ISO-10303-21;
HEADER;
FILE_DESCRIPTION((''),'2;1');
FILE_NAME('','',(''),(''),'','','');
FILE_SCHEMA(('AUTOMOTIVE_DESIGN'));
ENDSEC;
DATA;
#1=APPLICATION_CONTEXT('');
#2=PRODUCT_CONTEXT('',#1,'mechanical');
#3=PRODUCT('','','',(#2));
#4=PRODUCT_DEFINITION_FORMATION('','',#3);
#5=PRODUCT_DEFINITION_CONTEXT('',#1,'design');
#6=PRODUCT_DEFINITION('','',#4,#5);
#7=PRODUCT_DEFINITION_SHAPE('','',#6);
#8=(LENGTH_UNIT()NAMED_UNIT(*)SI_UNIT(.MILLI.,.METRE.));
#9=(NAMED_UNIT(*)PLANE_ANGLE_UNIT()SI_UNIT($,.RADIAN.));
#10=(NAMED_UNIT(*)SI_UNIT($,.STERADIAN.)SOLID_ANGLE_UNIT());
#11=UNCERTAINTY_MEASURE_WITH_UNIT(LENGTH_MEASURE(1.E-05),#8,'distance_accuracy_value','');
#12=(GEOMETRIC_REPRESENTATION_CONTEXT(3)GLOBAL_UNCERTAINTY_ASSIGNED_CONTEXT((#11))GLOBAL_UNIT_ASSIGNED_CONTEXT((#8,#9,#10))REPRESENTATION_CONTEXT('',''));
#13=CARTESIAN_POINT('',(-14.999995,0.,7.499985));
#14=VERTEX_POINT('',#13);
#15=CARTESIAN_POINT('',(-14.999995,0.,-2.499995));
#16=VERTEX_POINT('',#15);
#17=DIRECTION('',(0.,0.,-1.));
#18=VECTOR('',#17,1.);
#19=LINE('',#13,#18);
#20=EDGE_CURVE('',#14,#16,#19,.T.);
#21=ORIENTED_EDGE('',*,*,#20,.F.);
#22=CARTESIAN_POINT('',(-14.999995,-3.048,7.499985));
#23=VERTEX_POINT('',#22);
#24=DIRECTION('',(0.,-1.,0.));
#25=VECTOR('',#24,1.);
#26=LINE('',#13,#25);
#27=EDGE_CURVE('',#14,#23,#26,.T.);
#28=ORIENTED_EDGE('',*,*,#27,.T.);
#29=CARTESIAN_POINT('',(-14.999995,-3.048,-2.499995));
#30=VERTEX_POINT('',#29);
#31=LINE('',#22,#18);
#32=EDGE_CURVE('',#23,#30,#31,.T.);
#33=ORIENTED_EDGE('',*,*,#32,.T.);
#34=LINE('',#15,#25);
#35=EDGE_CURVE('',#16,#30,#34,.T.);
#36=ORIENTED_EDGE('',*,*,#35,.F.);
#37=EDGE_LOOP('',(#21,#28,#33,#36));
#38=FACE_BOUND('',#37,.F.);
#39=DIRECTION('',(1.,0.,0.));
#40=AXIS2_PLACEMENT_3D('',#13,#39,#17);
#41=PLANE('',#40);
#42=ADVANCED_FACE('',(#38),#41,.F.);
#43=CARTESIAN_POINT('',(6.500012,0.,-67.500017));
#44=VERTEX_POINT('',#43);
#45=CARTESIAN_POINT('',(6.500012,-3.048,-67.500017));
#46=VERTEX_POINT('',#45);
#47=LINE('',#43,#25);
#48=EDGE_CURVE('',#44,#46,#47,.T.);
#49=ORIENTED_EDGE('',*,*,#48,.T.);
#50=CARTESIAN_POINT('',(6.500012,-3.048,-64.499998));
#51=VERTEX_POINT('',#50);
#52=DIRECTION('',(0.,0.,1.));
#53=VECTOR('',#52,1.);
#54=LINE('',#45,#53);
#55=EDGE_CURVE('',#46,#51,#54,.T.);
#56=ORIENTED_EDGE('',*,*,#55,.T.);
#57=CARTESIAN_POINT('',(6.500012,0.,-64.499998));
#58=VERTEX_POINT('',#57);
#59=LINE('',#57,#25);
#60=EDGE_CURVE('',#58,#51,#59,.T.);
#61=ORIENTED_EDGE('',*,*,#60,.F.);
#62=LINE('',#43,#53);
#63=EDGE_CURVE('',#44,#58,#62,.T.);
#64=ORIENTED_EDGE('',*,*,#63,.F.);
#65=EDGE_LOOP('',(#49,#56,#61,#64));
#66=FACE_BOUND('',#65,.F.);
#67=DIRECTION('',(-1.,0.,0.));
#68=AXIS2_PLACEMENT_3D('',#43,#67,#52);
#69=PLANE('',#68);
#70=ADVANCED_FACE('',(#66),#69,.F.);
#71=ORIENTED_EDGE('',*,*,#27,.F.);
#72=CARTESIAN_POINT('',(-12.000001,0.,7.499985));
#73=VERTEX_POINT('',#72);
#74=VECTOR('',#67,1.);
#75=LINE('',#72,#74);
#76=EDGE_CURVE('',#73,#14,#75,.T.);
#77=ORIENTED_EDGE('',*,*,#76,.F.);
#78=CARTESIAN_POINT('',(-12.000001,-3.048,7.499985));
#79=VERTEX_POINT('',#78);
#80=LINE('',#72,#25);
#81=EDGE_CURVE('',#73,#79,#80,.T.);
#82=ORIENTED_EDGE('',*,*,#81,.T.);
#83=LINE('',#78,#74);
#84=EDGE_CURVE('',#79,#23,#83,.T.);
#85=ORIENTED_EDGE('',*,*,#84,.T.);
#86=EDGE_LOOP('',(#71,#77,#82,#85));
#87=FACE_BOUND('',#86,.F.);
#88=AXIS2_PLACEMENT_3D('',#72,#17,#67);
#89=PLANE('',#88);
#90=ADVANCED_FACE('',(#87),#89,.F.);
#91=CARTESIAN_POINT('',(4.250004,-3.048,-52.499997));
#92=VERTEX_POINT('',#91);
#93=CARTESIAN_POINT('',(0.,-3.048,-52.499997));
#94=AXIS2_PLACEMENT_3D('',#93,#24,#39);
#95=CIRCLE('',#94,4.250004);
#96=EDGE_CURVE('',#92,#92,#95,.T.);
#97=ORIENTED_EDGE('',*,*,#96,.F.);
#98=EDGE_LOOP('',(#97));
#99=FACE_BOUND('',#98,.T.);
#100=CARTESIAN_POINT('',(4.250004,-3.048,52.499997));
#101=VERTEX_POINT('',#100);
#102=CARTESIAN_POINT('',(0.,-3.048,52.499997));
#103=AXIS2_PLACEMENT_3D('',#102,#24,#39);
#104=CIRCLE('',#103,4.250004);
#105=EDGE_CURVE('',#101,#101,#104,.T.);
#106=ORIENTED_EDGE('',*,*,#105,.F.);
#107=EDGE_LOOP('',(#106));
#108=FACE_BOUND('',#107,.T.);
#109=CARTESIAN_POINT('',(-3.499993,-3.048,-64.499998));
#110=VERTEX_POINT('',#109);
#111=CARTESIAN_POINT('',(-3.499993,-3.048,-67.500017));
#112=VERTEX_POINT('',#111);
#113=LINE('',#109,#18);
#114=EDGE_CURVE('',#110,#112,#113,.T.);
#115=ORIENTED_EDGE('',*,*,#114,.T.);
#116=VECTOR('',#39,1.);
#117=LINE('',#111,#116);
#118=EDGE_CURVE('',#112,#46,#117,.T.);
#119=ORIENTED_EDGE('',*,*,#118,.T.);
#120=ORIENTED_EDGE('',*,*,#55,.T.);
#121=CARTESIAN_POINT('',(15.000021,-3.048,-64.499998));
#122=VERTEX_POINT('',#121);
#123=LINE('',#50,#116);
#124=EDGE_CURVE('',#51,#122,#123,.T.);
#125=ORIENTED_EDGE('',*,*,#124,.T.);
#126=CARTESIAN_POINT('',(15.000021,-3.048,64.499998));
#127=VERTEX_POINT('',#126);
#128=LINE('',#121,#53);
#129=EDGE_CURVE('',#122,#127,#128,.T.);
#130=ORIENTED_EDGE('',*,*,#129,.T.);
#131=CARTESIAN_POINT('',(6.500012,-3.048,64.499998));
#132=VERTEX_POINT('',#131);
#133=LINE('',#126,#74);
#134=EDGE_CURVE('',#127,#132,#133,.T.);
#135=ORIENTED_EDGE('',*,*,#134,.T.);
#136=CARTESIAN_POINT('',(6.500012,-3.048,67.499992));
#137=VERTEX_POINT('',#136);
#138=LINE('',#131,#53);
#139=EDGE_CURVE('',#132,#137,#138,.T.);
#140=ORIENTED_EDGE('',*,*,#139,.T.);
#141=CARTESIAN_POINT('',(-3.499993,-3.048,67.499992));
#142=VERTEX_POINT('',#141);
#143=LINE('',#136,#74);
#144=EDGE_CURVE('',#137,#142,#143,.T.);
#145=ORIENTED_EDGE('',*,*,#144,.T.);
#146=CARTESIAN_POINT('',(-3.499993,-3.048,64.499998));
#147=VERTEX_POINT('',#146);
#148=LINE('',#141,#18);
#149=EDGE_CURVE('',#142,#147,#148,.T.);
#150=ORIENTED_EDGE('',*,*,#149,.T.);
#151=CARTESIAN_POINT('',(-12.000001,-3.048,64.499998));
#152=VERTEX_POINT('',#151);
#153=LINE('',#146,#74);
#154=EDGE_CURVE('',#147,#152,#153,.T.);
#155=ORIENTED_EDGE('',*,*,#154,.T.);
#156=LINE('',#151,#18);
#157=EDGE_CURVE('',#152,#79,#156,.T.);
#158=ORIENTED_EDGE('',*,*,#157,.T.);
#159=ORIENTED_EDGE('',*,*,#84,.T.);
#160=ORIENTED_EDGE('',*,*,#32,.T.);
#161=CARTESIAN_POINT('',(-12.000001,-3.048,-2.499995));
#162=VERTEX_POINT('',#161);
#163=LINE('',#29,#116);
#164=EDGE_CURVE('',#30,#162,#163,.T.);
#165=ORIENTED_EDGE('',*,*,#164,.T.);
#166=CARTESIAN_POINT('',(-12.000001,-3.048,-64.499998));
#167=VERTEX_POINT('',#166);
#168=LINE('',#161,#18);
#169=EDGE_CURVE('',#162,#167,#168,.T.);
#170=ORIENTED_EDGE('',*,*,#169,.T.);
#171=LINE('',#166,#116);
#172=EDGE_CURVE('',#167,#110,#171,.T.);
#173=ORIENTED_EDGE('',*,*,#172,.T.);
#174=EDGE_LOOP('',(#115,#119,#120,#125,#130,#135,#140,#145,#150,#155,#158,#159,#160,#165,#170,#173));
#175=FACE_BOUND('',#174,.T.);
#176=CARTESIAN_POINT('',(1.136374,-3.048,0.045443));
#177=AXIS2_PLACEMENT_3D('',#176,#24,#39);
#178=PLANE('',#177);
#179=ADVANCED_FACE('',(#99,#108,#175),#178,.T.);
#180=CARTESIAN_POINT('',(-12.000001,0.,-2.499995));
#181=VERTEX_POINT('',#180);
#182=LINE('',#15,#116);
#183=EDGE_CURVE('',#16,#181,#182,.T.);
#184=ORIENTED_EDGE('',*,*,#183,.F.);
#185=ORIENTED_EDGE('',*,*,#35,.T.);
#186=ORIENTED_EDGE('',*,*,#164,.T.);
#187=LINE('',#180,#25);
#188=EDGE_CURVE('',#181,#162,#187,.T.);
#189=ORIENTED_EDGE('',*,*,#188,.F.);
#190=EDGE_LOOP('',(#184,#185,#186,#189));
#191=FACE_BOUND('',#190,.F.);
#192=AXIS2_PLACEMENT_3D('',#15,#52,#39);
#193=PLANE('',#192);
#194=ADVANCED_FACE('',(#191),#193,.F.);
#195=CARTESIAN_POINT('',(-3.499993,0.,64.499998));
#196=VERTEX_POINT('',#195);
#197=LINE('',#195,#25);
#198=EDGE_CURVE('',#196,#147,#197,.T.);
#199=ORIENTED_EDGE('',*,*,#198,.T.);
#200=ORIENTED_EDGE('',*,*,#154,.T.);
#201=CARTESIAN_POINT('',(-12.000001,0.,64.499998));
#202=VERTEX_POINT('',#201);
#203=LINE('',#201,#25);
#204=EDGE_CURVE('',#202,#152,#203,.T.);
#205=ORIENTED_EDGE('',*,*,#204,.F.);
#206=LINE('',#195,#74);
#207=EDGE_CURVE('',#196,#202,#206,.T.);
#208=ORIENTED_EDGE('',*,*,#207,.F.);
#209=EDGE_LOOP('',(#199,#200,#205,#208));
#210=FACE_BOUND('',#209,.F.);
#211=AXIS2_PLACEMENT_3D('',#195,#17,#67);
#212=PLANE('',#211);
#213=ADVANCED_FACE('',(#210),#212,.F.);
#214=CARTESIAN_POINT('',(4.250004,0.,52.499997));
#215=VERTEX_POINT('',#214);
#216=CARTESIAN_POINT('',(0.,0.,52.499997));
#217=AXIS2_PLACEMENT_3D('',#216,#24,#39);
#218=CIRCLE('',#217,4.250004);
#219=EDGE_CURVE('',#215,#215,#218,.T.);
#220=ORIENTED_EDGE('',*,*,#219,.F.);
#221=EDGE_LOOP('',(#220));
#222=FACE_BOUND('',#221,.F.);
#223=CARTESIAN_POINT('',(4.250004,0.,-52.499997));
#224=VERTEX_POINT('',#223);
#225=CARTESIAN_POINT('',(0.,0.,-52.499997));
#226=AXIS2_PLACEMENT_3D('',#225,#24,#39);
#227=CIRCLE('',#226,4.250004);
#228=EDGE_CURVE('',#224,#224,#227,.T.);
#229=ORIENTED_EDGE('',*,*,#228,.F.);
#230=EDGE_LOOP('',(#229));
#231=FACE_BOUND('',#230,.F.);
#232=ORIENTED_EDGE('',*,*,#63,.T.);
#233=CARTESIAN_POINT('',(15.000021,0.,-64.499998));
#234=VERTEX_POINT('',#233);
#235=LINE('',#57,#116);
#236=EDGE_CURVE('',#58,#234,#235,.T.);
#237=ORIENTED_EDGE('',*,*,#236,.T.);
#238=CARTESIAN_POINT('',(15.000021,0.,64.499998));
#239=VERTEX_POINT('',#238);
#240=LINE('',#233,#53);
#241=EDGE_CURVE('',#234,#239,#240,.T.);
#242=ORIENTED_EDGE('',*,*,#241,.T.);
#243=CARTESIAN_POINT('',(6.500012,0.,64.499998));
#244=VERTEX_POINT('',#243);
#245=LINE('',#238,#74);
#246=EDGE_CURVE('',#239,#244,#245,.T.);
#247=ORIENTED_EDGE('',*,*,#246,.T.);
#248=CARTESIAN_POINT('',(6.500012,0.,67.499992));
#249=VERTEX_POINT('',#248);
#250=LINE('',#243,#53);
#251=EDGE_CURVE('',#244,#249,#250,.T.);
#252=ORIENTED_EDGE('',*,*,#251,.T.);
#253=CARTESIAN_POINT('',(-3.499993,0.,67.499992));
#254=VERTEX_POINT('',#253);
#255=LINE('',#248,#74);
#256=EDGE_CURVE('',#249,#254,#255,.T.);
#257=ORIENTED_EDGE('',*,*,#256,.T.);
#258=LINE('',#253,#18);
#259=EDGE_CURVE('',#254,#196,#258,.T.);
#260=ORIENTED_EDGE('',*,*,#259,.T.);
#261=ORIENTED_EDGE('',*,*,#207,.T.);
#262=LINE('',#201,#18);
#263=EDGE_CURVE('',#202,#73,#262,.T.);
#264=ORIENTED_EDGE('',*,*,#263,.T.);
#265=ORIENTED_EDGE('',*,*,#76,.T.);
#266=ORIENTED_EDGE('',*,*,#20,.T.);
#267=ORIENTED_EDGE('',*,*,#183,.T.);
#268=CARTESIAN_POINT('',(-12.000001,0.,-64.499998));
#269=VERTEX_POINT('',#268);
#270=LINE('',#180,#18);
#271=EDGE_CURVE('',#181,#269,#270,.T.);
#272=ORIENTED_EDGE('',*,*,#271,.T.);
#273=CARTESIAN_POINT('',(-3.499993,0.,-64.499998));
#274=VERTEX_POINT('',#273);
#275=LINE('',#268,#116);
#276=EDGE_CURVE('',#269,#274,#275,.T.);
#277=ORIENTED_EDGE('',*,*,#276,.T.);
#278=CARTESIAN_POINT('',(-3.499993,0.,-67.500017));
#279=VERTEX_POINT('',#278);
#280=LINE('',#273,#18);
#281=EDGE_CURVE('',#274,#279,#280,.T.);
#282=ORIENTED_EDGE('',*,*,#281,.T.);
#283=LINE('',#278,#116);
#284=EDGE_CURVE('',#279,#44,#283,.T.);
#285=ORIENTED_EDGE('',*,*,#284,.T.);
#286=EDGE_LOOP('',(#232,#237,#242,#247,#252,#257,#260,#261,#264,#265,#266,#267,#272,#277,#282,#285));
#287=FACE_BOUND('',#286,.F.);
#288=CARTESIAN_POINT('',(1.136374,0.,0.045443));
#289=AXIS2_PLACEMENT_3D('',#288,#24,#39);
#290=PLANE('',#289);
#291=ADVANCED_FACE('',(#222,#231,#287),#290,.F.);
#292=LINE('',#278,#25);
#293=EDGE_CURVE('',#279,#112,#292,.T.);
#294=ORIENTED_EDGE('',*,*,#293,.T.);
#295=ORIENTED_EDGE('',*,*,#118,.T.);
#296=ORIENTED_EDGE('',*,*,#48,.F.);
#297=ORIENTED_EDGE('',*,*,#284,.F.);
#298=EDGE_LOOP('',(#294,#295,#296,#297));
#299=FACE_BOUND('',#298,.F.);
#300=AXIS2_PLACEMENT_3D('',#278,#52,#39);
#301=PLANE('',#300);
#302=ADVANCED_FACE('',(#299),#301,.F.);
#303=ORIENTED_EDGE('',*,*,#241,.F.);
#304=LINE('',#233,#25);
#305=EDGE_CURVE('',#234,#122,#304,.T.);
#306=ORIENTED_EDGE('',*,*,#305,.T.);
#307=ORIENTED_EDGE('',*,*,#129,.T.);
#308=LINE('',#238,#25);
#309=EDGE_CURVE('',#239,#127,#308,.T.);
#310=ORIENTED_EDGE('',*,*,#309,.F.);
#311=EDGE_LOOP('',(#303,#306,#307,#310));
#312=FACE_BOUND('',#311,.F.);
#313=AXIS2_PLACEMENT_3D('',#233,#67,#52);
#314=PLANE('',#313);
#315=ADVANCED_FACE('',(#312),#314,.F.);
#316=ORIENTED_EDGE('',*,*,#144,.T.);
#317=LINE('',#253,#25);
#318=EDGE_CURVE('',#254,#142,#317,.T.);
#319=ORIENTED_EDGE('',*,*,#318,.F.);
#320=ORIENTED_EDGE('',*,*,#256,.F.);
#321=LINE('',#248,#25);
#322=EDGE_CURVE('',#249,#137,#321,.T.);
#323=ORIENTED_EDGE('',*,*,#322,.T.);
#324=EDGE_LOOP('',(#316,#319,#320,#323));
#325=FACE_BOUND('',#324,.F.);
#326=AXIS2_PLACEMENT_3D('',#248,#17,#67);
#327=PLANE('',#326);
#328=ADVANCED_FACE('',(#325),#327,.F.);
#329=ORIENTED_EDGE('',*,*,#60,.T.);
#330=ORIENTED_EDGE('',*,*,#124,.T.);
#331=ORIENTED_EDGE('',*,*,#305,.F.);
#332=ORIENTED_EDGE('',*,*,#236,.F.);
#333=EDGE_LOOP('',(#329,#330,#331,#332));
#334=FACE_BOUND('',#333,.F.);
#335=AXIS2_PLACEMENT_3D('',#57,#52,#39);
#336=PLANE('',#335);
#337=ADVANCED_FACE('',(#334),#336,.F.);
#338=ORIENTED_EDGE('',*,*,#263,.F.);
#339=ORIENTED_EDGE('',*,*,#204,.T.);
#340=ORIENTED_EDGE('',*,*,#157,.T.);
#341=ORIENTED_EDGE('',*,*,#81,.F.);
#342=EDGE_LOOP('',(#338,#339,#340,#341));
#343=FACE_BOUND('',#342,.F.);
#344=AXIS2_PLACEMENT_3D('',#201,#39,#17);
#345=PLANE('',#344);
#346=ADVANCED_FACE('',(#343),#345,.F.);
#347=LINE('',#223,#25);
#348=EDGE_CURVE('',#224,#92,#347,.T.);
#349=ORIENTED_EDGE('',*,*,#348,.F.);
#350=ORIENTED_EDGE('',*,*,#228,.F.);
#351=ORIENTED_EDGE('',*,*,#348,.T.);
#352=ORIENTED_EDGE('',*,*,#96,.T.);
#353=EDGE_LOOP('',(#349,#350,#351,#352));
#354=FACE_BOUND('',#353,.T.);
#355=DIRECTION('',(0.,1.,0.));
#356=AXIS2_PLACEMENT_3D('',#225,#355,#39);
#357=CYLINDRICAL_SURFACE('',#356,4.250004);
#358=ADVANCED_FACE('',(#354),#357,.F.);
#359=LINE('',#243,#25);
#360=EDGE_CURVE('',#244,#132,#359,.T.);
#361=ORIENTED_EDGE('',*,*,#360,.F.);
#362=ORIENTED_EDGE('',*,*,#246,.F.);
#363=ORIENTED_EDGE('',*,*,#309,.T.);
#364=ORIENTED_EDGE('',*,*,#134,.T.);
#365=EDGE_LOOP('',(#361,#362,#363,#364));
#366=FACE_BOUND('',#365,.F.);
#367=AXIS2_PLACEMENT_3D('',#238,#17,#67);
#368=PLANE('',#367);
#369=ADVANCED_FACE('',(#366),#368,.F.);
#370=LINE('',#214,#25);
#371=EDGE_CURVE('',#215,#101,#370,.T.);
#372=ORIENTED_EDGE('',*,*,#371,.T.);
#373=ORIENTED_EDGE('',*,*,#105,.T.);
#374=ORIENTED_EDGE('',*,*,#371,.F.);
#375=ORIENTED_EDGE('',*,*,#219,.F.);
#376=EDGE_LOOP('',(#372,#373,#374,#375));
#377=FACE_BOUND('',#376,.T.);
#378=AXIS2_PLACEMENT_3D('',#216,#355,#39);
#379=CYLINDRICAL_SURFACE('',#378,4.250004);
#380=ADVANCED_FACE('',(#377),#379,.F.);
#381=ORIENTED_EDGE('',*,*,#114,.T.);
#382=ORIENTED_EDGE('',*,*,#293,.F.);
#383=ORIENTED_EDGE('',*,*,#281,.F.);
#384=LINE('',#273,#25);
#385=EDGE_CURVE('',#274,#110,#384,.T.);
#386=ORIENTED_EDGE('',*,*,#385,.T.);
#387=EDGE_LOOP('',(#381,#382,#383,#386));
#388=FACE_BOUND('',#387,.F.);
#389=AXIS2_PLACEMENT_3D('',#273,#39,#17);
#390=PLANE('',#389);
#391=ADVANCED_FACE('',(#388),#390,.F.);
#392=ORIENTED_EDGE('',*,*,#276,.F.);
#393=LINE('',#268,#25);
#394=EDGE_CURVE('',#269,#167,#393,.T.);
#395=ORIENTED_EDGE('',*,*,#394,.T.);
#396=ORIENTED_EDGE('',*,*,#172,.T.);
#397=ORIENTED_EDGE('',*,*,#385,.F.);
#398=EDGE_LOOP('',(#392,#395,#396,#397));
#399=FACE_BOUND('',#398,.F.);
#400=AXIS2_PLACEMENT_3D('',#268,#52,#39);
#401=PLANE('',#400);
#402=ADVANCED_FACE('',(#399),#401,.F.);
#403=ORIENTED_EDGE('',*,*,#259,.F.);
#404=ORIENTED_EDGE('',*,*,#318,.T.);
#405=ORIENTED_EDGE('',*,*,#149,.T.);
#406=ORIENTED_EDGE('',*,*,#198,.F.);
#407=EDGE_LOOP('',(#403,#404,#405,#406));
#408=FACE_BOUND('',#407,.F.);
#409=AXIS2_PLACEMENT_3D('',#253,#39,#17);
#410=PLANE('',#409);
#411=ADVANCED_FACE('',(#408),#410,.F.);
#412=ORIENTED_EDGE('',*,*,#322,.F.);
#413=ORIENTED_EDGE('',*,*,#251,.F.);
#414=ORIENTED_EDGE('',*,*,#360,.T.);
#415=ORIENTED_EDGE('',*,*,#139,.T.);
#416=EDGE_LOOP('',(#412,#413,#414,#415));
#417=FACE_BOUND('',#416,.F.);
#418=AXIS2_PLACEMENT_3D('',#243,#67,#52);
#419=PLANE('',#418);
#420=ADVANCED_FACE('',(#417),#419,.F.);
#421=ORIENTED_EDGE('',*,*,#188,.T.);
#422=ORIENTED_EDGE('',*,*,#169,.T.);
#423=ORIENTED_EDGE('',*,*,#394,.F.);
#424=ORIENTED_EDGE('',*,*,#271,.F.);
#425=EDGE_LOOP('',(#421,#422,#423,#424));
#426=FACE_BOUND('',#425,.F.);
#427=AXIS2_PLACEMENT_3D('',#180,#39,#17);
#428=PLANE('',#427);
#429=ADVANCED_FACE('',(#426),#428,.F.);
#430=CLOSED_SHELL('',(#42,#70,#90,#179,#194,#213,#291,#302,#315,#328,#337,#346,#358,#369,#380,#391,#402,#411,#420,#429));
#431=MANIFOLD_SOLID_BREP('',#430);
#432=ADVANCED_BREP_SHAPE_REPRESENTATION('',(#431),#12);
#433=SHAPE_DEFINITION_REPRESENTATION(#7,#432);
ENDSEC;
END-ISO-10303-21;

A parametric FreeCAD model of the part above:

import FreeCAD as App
import Part
import Sketcher
Q = App.Units.Quantity


def add_polygon(sketch, points):
    """Adds a closed chain of lines whose ends are joined by coincident constraints."""
    first, n = sketch.GeometryCount, len(points)
    for a, b in zip(points, points[1:] + points[:1]):
        sketch.addGeometry(Part.LineSegment(App.Vector(*a, 0), App.Vector(*b, 0)), False)
    for i in range(n):
        sketch.addConstraint(Sketcher.Constraint("Coincident", first + i, 2, first + (i + 1) % n, 1))

doc = App.newDocument("Part")
body = doc.addObject("PartDesign::Body", "Body")

# Sketch on XZ plane
sketch1 = body.newObject("Sketcher::SketchObject", "Sketch")
sketch1.AttachmentSupport = (doc.getObject("XZ_Plane"), [""])
sketch1.MapMode = "FlatFace"
add_polygon(sketch1, [(-12.000001, 64.499998), (-12.000001, 7.499985), (-14.999995, 7.499985), (-14.999995, -2.499995), (-12.000001, -2.499995), (-12.000001, -64.499998), (-3.499993, -64.499998), (-3.499993, -67.500017), (6.500012, -67.500017), (6.500012, -64.499998), (15.000021, -64.499998), (15.000021, 64.499998), (6.500012, 64.499998), (6.500012, 67.499992), (-3.499993, 67.499992), (-3.499993, 64.499998)])  # lines 0-15
sketch1.addGeometry(Part.Circle(App.Vector(0, -52.499997, 0), App.Vector(0, 0, 1), 4.250004), False)  # 16
sketch1.addGeometry(Part.Circle(App.Vector(0, 52.499997, 0), App.Vector(0, 0, 1), 4.250004), False)  # 17
sketch1.addConstraint([
    Sketcher.Constraint("Vertical", 0),
    Sketcher.Constraint("Horizontal", 1),
    Sketcher.Constraint("Vertical", 2),
    Sketcher.Constraint("Horizontal", 3),
    Sketcher.Constraint("Vertical", 4),
    Sketcher.Constraint("Horizontal", 5),
    Sketcher.Constraint("Vertical", 6),
    Sketcher.Constraint("Horizontal", 7),
    Sketcher.Constraint("Vertical", 8),
    Sketcher.Constraint("Horizontal", 9),
    Sketcher.Constraint("Vertical", 10),
    Sketcher.Constraint("Horizontal", 11),
    Sketcher.Constraint("Vertical", 12),
    Sketcher.Constraint("Horizontal", 13),
    Sketcher.Constraint("Vertical", 14),
    Sketcher.Constraint("Horizontal", 15),
    Sketcher.Constraint("Equal", 16, 17),
    Sketcher.Constraint("Symmetric", 16, 3, 17, 3, -1, 1),
    Sketcher.Constraint("Symmetric", 8, 2, 11, 2, -1),
    Sketcher.Constraint("Symmetric", 5, 2, 14, 2, -1),
    Sketcher.Constraint("PointOnObject", 16, 3, -2),
    Sketcher.Constraint("Horizontal", 5, 2, 8, 2),
    Sketcher.Constraint("Vertical", 0, 2, 3, 2),
    Sketcher.Constraint("Equal", 5, 9),
    Sketcher.Constraint("Equal", 3, 12),
    Sketcher.Constraint("DistanceY", 2, 2, 2, 1, Q("0.3937 in")),
    Sketcher.Constraint("Diameter", 16, 8.500008),
    Sketcher.Constraint("DistanceX", 9, 1, 9, 2, 8.500009),
    Sketcher.Constraint("DistanceY", 6, 2, 6, 1, 3.000019),
    Sketcher.Constraint("DistanceX", 0, 2, -1, 1, 12.000001),
    Sketcher.Constraint("DistanceY", 4, 2, -1, 1, 64.499998),
    Sketcher.Constraint("DistanceY", 4, 2, 16, 3, 12.000001),
    Sketcher.Constraint("DistanceX", 1, 2, 1, 1, 2.999994),
    Sketcher.Constraint("DistanceX", 7, 1, 7, 2, 10.000005),
    Sketcher.Constraint("DistanceY", 0, 2, 0, 1, 57.000013),
])
pad1 = body.newObject("PartDesign::Pad", "Pad")
pad1.Profile = sketch1
pad1.Length = Q("0.12 in")

doc.recompute()
